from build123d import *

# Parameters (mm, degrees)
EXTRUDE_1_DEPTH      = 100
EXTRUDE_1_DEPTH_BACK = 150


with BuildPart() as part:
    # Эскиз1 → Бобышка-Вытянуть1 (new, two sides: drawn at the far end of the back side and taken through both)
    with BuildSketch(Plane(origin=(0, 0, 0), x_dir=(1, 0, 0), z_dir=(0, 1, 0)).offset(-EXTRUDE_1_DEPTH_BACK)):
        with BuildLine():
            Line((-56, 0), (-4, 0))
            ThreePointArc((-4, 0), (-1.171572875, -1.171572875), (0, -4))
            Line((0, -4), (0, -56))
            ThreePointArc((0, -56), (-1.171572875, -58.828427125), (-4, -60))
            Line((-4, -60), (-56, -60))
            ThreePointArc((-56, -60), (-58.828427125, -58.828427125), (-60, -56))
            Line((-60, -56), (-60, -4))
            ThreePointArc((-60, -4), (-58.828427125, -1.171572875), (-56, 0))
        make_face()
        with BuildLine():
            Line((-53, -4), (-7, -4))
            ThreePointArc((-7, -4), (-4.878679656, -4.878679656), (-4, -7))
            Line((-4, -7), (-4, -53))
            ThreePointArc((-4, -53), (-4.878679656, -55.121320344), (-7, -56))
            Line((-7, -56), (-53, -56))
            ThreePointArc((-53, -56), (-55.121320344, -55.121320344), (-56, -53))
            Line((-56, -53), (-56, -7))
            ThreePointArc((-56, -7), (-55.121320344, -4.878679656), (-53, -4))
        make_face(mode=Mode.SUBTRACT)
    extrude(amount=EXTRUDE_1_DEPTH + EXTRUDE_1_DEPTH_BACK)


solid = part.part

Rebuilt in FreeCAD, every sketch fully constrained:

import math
import FreeCAD as App
import Part
import Sketcher

V = App.Vector

doc = App.newDocument("Part")
body = doc.addObject("PartDesign::Body", "Body")

sketch1 = body.newObject("Sketcher::SketchObject", "Sketch")
sketch1.AttachmentSupport = (doc.getObject("XZ_Plane"), [""])
sketch1.MapMode = "FlatFace"
sketch1.addGeometry([
    Part.LineSegment(V(-4, 0, 0), V(-56, 0, 0)),
    Part.ArcOfCircle(Part.Circle(V(-56, 4, 0), V(0, 0, 1), 4), math.radians(180), math.radians(270)),
    Part.LineSegment(V(-60, 4, 0), V(-60, 56, 0)),
    Part.ArcOfCircle(Part.Circle(V(-56, 56, 0), V(0, 0, 1), 4), math.radians(90), math.radians(180)),
    Part.LineSegment(V(-56, 60, 0), V(-4, 60, 0)),
    Part.ArcOfCircle(Part.Circle(V(-4, 56, 0), V(0, 0, 1), 4), math.radians(0), math.radians(90)),
    Part.LineSegment(V(0, 56, 0), V(0, 4, 0)),
    Part.ArcOfCircle(Part.Circle(V(-4, 4, 0), V(0, 0, 1), 4), math.radians(-90), math.radians(0)),
    Part.LineSegment(V(-53, 4, 0), V(-7, 4, 0)),
    Part.ArcOfCircle(Part.Circle(V(-7, 7, 0), V(0, 0, 1), 3), math.radians(-90), math.radians(0)),
    Part.LineSegment(V(-4, 7, 0), V(-4, 53, 0)),
    Part.ArcOfCircle(Part.Circle(V(-7, 53, 0), V(0, 0, 1), 3), math.radians(0), math.radians(90)),
    Part.LineSegment(V(-7, 56, 0), V(-53, 56, 0)),
    Part.ArcOfCircle(Part.Circle(V(-53, 53, 0), V(0, 0, 1), 3), math.radians(90), math.radians(180)),
    Part.LineSegment(V(-56, 53, 0), V(-56, 7, 0)),
    Part.ArcOfCircle(Part.Circle(V(-53, 7, 0), V(0, 0, 1), 3), math.radians(180), math.radians(270)),
], False)
sketch1.addConstraint([
    Sketcher.Constraint("Tangent", 0, 2, 1, 2),
    Sketcher.Constraint("Tangent", 1, 1, 2, 1),
    Sketcher.Constraint("Tangent", 2, 2, 3, 2),
    Sketcher.Constraint("Tangent", 3, 1, 4, 1),
    Sketcher.Constraint("Tangent", 4, 2, 5, 2),
    Sketcher.Constraint("Tangent", 5, 1, 6, 1),
    Sketcher.Constraint("Tangent", 6, 2, 7, 2),
    Sketcher.Constraint("Tangent", 7, 1, 0, 1),
    Sketcher.Constraint("Tangent", 8, 2, 9, 1),
    Sketcher.Constraint("Tangent", 9, 2, 10, 1),
    Sketcher.Constraint("Tangent", 10, 2, 11, 1),
    Sketcher.Constraint("Tangent", 11, 2, 12, 1),
    Sketcher.Constraint("Tangent", 12, 2, 13, 1),
    Sketcher.Constraint("Tangent", 13, 2, 14, 1),
    Sketcher.Constraint("Tangent", 14, 2, 15, 1),
    Sketcher.Constraint("Tangent", 15, 2, 8, 1),
    Sketcher.Constraint("Horizontal", 0),
    Sketcher.Constraint("Vertical", 2),
    Sketcher.Constraint("Horizontal", 4),
    Sketcher.Constraint("Vertical", 6),
    Sketcher.Constraint("Horizontal", 8),
    Sketcher.Constraint("Vertical", 10),
    Sketcher.Constraint("Horizontal", 12),
    Sketcher.Constraint("Vertical", 14),
    Sketcher.Constraint("Equal", 1, 3),
    Sketcher.Constraint("Equal", 3, 5),
    Sketcher.Constraint("Equal", 5, 7),
    Sketcher.Constraint("Equal", 9, 11),
    Sketcher.Constraint("Equal", 11, 13),
    Sketcher.Constraint("Equal", 13, 15),
    Sketcher.Constraint("PointOnObject", 0, 2, -1),
    Sketcher.Constraint("PointOnObject", 5, 1, -2),
    Sketcher.Constraint("Horizontal", 6, 2, 8, 2),
    Sketcher.Constraint("Horizontal", 5, 1, 11, 2),
    Sketcher.Constraint("Vertical", 7, 1, 9, 2),
    Sketcher.Constraint("Vertical", 3, 1, 13, 2),
    Sketcher.Constraint("Equal", 4, 2),
    Sketcher.Constraint("Radius", 1, 4.0),
    Sketcher.Constraint("Radius", 9, 3.0),
    Sketcher.Constraint("DistanceX", 0, 2, 0, 1, 52.0),
])
pad1 = body.newObject("PartDesign::Pad", "Pad")
pad1.Profile = sketch1
pad1.Type = "TwoLengths"
pad1.Length = 100
pad1.Length2 = 150
pad1.Reversed = True

doc.recompute()
